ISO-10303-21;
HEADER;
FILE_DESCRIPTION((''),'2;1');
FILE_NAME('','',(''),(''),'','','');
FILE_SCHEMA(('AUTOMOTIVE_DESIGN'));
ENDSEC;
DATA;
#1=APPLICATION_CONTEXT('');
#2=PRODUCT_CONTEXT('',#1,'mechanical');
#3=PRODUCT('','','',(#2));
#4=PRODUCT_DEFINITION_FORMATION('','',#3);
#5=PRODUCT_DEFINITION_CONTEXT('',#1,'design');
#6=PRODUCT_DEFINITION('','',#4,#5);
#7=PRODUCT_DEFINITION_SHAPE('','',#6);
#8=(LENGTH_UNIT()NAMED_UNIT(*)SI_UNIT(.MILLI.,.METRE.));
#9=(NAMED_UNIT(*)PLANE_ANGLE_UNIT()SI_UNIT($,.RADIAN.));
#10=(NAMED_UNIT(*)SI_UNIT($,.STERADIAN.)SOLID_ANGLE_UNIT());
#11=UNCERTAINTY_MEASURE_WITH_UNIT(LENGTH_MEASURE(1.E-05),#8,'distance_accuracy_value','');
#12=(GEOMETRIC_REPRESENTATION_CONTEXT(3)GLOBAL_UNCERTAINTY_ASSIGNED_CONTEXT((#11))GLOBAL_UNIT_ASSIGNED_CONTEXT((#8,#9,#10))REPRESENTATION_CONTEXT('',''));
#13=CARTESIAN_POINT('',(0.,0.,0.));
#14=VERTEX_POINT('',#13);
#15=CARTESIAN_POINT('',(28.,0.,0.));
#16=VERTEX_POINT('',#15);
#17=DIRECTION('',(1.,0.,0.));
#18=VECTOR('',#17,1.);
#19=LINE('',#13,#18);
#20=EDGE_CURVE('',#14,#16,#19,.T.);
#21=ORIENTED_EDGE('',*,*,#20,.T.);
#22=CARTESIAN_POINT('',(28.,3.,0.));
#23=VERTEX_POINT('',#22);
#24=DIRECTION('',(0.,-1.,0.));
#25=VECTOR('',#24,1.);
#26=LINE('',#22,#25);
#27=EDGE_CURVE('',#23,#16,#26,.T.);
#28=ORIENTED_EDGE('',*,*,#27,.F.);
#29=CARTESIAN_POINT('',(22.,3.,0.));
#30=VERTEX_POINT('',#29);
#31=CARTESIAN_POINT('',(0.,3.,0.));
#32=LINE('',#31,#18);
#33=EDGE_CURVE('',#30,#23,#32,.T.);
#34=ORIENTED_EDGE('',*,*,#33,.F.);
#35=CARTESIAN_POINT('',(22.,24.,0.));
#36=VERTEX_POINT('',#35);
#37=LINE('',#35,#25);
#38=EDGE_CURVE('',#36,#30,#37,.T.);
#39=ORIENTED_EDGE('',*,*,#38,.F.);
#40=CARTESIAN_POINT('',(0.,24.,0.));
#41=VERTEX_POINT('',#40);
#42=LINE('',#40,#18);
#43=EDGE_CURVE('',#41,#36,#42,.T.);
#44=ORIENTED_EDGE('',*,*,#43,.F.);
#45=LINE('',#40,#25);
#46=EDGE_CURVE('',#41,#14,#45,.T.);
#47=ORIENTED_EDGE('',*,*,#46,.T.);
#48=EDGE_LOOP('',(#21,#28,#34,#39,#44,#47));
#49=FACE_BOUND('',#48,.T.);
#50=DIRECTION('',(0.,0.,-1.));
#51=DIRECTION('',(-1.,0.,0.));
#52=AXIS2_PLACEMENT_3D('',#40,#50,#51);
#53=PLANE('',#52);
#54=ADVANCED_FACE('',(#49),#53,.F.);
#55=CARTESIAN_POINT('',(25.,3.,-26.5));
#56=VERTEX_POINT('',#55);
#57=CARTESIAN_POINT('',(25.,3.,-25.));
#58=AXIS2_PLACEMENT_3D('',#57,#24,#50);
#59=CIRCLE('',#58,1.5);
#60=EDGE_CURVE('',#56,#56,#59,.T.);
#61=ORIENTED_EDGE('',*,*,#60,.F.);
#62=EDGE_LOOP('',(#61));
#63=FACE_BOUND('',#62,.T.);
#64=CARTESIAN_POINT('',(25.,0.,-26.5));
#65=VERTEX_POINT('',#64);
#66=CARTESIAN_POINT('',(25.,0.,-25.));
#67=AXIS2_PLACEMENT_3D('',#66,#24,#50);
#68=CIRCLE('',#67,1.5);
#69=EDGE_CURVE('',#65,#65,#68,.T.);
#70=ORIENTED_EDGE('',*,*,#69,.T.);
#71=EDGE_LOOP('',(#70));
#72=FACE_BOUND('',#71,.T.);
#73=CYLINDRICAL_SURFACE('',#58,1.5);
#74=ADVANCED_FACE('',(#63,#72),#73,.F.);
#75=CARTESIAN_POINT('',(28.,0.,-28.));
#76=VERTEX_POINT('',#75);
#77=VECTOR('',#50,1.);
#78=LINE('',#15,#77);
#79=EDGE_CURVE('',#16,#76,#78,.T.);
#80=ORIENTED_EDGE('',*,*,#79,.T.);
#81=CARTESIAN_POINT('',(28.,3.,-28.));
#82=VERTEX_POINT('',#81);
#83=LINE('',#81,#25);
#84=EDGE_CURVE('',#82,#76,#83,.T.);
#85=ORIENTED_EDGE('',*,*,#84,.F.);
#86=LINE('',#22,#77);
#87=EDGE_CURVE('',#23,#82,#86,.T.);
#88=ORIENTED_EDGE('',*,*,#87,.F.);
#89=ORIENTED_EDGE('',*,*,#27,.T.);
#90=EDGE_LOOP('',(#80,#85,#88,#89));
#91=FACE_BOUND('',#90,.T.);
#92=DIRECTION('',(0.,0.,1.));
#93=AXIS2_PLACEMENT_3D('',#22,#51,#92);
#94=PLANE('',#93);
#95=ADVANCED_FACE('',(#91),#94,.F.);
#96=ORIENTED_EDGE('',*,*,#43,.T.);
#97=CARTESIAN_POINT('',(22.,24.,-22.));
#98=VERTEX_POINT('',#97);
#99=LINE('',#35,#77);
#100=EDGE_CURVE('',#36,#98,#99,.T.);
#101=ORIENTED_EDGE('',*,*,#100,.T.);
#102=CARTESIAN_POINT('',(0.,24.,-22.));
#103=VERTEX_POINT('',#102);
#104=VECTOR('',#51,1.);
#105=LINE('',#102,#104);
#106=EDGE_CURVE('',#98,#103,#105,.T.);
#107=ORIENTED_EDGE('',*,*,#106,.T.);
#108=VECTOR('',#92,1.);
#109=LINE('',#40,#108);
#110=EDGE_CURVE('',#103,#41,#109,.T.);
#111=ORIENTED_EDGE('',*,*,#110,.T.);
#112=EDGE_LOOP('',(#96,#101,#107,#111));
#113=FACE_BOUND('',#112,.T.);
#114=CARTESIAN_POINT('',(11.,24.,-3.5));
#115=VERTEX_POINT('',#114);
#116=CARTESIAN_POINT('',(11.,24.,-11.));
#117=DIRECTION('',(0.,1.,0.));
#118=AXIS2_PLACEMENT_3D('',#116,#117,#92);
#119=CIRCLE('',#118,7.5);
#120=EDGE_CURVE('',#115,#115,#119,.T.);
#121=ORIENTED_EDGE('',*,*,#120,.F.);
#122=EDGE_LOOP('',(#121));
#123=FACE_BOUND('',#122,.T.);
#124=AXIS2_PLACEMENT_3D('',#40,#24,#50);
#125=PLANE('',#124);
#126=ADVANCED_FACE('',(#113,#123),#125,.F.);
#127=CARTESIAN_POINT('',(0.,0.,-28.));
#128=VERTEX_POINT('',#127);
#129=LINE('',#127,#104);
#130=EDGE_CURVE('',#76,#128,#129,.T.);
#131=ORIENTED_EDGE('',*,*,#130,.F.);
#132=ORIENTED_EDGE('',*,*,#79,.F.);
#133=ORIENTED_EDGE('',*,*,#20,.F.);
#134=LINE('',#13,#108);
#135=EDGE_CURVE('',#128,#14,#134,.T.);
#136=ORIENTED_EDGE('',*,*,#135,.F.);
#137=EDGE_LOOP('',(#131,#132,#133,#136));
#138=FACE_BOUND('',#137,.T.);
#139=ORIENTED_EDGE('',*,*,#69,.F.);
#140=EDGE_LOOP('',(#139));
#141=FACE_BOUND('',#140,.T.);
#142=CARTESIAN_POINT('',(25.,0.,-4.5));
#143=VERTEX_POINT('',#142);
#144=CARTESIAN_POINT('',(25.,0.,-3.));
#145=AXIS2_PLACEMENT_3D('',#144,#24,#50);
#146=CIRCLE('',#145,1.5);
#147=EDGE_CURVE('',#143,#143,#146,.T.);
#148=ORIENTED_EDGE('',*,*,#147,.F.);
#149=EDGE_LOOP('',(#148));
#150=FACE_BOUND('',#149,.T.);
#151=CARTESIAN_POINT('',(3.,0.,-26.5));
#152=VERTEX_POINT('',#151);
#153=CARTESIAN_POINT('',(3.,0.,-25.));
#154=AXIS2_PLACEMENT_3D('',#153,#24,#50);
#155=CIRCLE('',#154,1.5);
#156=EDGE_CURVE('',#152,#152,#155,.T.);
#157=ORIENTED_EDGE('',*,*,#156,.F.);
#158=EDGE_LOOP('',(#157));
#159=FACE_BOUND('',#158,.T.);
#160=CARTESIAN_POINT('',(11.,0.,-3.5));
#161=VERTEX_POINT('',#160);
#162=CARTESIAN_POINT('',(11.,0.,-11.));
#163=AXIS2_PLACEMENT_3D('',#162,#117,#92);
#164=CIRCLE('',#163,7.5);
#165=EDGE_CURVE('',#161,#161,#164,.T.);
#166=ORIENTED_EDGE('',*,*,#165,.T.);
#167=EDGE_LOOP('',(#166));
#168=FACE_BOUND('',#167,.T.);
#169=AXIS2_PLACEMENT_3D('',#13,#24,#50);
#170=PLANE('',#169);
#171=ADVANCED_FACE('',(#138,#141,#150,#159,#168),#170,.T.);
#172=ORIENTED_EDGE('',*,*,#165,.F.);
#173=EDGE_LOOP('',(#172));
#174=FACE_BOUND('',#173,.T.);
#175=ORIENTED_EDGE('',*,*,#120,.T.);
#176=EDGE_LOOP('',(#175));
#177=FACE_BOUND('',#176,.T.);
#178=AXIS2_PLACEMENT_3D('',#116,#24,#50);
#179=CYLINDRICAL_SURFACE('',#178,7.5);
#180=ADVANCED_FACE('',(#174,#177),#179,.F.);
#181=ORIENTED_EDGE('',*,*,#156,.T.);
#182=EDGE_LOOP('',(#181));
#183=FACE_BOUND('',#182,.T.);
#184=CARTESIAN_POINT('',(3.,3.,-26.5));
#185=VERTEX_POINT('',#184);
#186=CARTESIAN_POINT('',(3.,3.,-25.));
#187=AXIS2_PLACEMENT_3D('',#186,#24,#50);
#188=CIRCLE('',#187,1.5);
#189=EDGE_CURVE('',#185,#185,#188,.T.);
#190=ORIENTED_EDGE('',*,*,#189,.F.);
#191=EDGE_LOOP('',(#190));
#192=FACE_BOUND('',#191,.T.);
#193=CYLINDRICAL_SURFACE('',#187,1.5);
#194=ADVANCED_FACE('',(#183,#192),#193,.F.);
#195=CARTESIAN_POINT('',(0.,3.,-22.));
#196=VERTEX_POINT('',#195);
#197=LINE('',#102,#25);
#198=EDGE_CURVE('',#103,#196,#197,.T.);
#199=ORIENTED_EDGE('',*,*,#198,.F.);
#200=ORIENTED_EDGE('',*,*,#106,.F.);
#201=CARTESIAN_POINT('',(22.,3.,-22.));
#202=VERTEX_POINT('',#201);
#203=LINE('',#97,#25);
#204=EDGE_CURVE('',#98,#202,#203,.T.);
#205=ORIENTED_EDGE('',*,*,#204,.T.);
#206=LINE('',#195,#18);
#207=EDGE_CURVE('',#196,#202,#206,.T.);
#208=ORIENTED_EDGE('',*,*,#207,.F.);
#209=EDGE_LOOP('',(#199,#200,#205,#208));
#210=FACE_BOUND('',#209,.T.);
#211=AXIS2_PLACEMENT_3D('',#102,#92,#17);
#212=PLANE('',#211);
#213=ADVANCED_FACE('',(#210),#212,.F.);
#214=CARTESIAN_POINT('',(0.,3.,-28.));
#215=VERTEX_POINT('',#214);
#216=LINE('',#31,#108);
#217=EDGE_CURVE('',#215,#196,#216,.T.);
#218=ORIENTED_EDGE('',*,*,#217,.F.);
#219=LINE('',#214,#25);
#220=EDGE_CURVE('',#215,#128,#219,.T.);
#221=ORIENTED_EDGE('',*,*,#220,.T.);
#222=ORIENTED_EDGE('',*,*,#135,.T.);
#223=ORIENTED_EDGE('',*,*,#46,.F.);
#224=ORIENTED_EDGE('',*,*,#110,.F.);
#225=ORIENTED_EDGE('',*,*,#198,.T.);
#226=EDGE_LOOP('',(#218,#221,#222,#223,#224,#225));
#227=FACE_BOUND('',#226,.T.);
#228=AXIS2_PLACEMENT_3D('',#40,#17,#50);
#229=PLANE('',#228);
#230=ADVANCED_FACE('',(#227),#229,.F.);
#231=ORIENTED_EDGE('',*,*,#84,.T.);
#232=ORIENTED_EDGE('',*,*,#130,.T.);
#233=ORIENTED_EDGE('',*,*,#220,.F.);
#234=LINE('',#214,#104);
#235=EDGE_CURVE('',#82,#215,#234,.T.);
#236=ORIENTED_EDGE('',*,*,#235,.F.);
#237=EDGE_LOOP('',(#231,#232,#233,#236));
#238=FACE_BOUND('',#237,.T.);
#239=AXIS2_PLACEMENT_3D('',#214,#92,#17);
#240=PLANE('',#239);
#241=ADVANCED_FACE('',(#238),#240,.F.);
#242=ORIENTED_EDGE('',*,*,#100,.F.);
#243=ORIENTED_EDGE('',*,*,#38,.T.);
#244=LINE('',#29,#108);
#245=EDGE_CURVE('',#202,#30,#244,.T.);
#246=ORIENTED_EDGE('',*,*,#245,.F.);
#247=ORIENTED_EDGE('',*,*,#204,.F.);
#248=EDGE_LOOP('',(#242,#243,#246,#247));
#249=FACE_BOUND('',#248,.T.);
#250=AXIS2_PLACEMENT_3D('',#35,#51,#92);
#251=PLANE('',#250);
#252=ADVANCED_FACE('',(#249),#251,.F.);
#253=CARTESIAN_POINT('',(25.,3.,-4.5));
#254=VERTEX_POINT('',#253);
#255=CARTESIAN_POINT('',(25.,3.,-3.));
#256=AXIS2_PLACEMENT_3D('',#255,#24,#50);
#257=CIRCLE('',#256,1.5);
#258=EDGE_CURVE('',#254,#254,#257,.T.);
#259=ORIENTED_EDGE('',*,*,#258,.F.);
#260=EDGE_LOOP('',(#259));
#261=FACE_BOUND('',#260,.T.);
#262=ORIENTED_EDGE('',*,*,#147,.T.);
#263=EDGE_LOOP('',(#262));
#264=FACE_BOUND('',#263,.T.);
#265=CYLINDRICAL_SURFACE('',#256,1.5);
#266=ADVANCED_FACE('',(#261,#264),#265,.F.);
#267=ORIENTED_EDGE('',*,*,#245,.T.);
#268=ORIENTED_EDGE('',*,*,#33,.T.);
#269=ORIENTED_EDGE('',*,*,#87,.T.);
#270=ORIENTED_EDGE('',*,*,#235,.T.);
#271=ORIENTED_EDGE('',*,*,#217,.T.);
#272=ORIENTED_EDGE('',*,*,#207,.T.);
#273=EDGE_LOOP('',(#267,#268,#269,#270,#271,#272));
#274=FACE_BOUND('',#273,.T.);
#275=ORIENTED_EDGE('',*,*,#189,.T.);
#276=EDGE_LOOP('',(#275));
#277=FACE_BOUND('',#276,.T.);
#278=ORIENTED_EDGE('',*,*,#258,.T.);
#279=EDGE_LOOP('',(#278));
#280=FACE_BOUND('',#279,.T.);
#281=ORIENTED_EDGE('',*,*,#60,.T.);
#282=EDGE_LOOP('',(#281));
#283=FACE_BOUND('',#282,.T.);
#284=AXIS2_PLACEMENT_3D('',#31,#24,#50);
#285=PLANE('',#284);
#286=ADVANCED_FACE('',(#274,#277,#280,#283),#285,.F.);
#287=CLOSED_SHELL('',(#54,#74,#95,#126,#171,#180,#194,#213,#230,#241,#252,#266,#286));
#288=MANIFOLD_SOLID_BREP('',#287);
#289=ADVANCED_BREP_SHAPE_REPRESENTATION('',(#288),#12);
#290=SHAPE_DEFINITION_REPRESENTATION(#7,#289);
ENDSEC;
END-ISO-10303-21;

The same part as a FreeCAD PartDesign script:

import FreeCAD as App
import Part
import Sketcher
from FreeCAD import Vector
Q = App.Units.Quantity

doc = App.newDocument("Part")
body = doc.addObject("PartDesign::Body", "Body")

sketch1 = body.newObject("Sketcher::SketchObject", "Sketch")
sketch1.AttachmentSupport = (doc.getObject("XZ_Plane"), [""])
sketch1.MapMode = "FlatFace"
sketch1.addGeometry([
    Part.LineSegment(Vector(0, -22, 0), Vector(0, 0, 0)),
    Part.LineSegment(Vector(0, 0, 0), Vector(22, 0, 0)),
    Part.LineSegment(Vector(22, 0, 0), Vector(22, -22, 0)),
    Part.LineSegment(Vector(22, -22, 0), Vector(0, -22, 0)),
    Part.Circle(Vector(11, -11, 0), Vector(0, 0, 1), 8),
], False)
sketch1.addConstraint([
    Sketcher.Constraint("Coincident", 0, 2, 1, 1),
    Sketcher.Constraint("Coincident", 1, 2, 2, 1),
    Sketcher.Constraint("Coincident", 2, 2, 3, 1),
    Sketcher.Constraint("Coincident", 3, 2, 0, 1),
    Sketcher.Constraint("Vertical", 0),
    Sketcher.Constraint("Horizontal", 1),
    Sketcher.Constraint("Vertical", 2),
    Sketcher.Constraint("Horizontal", 3),
    Sketcher.Constraint("Coincident", 0, 2, -1, 1),
    Sketcher.Constraint("Equal", 3, 0),
    Sketcher.Constraint("Diameter", 4, Q("15 mm")),
    Sketcher.Constraint("DistanceX", 1, 1, 1, 2, Q("22 mm")),
    Sketcher.Constraint("DistanceX", -1, 1, 4, 3, Q("11 mm")),
    Sketcher.Constraint("DistanceY", 4, 3, -1, 1, Q("11 mm")),
])
pad1 = body.newObject("PartDesign::Pad", "Pad")
pad1.Profile = sketch1
pad1.Length = 24
pad1.Reversed = True

sketch2 = body.newObject("Sketcher::SketchObject", "Sketch001")
sketch2.AttachmentSupport = (doc.getObject("XZ_Plane"), [""])
sketch2.MapMode = "FlatFace"
sketch2.addGeometry([
    Part.LineSegment(Vector(22, -22, 0), Vector(0, -22, 0)),
    Part.LineSegment(Vector(0, -22, 0), Vector(0, -28, 0)),
    Part.LineSegment(Vector(0, -28, 0), Vector(28, -28, 0)),
    Part.LineSegment(Vector(28, -28, 0), Vector(28, 0, 0)),
    Part.LineSegment(Vector(28, 0, 0), Vector(22, 0, 0)),
    Part.LineSegment(Vector(22, 0, 0), Vector(22, -22, 0)),
    Part.Circle(Vector(25, -25, 0), Vector(0, 0, 1), 1.5),
    Part.Circle(Vector(3, -25, 0), Vector(0, 0, 1), 1.5),
    Part.Circle(Vector(25, -3, 0), Vector(0, 0, 1), 1.5),
], False)
sketch2.addConstraint([
    Sketcher.Constraint("Coincident", 0, 2, 1, 1),
    Sketcher.Constraint("Coincident", 1, 2, 2, 1),
    Sketcher.Constraint("Coincident", 2, 2, 3, 1),
    Sketcher.Constraint("Coincident", 3, 2, 4, 1),
    Sketcher.Constraint("Coincident", 4, 2, 5, 1),
    Sketcher.Constraint("Coincident", 5, 2, 0, 1),
    Sketcher.Constraint("Horizontal", 0),
    Sketcher.Constraint("Vertical", 1),
    Sketcher.Constraint("Horizontal", 2),
    Sketcher.Constraint("Vertical", 3),
    Sketcher.Constraint("Horizontal", 4),
    Sketcher.Constraint("Vertical", 5),
    Sketcher.Constraint("Equal", 6, 7),
    Sketcher.Constraint("Equal", 7, 8),
    Sketcher.Constraint("PointOnObject", 0, 2, -2),
    Sketcher.Constraint("PointOnObject", 3, 2, -1),
    Sketcher.Constraint("Horizontal", 6, 3, 7, 3),
    Sketcher.Constraint("Vertical", 6, 3, 8, 3),
    Sketcher.Constraint("Equal", 4, 1),
    Sketcher.Constraint("Equal", 2, 3),
    Sketcher.Constraint("Diameter", 6, Q("3 mm")),
    Sketcher.Constraint("DistanceX", 0, 2, 0, 1, Q("22 mm")),
    Sketcher.Constraint("DistanceX", 2, 1, 2, 2, Q("28 mm")),
    Sketcher.Constraint("DistanceX", -1, 1, 6, 3, Q("25 mm")),
    Sketcher.Constraint("DistanceY", 6, 3, -1, 1, Q("25 mm")),
    Sketcher.Constraint("DistanceX", -1, 1, 7, 3, Q("3 mm")),
    Sketcher.Constraint("DistanceY", 8, 3, -1, 1, Q("3 mm")),
])
pad2 = body.newObject("PartDesign::Pad", "Pad001")
pad2.Profile = sketch2
pad2.Length = 3
pad2.Reversed = True

doc.recompute()
